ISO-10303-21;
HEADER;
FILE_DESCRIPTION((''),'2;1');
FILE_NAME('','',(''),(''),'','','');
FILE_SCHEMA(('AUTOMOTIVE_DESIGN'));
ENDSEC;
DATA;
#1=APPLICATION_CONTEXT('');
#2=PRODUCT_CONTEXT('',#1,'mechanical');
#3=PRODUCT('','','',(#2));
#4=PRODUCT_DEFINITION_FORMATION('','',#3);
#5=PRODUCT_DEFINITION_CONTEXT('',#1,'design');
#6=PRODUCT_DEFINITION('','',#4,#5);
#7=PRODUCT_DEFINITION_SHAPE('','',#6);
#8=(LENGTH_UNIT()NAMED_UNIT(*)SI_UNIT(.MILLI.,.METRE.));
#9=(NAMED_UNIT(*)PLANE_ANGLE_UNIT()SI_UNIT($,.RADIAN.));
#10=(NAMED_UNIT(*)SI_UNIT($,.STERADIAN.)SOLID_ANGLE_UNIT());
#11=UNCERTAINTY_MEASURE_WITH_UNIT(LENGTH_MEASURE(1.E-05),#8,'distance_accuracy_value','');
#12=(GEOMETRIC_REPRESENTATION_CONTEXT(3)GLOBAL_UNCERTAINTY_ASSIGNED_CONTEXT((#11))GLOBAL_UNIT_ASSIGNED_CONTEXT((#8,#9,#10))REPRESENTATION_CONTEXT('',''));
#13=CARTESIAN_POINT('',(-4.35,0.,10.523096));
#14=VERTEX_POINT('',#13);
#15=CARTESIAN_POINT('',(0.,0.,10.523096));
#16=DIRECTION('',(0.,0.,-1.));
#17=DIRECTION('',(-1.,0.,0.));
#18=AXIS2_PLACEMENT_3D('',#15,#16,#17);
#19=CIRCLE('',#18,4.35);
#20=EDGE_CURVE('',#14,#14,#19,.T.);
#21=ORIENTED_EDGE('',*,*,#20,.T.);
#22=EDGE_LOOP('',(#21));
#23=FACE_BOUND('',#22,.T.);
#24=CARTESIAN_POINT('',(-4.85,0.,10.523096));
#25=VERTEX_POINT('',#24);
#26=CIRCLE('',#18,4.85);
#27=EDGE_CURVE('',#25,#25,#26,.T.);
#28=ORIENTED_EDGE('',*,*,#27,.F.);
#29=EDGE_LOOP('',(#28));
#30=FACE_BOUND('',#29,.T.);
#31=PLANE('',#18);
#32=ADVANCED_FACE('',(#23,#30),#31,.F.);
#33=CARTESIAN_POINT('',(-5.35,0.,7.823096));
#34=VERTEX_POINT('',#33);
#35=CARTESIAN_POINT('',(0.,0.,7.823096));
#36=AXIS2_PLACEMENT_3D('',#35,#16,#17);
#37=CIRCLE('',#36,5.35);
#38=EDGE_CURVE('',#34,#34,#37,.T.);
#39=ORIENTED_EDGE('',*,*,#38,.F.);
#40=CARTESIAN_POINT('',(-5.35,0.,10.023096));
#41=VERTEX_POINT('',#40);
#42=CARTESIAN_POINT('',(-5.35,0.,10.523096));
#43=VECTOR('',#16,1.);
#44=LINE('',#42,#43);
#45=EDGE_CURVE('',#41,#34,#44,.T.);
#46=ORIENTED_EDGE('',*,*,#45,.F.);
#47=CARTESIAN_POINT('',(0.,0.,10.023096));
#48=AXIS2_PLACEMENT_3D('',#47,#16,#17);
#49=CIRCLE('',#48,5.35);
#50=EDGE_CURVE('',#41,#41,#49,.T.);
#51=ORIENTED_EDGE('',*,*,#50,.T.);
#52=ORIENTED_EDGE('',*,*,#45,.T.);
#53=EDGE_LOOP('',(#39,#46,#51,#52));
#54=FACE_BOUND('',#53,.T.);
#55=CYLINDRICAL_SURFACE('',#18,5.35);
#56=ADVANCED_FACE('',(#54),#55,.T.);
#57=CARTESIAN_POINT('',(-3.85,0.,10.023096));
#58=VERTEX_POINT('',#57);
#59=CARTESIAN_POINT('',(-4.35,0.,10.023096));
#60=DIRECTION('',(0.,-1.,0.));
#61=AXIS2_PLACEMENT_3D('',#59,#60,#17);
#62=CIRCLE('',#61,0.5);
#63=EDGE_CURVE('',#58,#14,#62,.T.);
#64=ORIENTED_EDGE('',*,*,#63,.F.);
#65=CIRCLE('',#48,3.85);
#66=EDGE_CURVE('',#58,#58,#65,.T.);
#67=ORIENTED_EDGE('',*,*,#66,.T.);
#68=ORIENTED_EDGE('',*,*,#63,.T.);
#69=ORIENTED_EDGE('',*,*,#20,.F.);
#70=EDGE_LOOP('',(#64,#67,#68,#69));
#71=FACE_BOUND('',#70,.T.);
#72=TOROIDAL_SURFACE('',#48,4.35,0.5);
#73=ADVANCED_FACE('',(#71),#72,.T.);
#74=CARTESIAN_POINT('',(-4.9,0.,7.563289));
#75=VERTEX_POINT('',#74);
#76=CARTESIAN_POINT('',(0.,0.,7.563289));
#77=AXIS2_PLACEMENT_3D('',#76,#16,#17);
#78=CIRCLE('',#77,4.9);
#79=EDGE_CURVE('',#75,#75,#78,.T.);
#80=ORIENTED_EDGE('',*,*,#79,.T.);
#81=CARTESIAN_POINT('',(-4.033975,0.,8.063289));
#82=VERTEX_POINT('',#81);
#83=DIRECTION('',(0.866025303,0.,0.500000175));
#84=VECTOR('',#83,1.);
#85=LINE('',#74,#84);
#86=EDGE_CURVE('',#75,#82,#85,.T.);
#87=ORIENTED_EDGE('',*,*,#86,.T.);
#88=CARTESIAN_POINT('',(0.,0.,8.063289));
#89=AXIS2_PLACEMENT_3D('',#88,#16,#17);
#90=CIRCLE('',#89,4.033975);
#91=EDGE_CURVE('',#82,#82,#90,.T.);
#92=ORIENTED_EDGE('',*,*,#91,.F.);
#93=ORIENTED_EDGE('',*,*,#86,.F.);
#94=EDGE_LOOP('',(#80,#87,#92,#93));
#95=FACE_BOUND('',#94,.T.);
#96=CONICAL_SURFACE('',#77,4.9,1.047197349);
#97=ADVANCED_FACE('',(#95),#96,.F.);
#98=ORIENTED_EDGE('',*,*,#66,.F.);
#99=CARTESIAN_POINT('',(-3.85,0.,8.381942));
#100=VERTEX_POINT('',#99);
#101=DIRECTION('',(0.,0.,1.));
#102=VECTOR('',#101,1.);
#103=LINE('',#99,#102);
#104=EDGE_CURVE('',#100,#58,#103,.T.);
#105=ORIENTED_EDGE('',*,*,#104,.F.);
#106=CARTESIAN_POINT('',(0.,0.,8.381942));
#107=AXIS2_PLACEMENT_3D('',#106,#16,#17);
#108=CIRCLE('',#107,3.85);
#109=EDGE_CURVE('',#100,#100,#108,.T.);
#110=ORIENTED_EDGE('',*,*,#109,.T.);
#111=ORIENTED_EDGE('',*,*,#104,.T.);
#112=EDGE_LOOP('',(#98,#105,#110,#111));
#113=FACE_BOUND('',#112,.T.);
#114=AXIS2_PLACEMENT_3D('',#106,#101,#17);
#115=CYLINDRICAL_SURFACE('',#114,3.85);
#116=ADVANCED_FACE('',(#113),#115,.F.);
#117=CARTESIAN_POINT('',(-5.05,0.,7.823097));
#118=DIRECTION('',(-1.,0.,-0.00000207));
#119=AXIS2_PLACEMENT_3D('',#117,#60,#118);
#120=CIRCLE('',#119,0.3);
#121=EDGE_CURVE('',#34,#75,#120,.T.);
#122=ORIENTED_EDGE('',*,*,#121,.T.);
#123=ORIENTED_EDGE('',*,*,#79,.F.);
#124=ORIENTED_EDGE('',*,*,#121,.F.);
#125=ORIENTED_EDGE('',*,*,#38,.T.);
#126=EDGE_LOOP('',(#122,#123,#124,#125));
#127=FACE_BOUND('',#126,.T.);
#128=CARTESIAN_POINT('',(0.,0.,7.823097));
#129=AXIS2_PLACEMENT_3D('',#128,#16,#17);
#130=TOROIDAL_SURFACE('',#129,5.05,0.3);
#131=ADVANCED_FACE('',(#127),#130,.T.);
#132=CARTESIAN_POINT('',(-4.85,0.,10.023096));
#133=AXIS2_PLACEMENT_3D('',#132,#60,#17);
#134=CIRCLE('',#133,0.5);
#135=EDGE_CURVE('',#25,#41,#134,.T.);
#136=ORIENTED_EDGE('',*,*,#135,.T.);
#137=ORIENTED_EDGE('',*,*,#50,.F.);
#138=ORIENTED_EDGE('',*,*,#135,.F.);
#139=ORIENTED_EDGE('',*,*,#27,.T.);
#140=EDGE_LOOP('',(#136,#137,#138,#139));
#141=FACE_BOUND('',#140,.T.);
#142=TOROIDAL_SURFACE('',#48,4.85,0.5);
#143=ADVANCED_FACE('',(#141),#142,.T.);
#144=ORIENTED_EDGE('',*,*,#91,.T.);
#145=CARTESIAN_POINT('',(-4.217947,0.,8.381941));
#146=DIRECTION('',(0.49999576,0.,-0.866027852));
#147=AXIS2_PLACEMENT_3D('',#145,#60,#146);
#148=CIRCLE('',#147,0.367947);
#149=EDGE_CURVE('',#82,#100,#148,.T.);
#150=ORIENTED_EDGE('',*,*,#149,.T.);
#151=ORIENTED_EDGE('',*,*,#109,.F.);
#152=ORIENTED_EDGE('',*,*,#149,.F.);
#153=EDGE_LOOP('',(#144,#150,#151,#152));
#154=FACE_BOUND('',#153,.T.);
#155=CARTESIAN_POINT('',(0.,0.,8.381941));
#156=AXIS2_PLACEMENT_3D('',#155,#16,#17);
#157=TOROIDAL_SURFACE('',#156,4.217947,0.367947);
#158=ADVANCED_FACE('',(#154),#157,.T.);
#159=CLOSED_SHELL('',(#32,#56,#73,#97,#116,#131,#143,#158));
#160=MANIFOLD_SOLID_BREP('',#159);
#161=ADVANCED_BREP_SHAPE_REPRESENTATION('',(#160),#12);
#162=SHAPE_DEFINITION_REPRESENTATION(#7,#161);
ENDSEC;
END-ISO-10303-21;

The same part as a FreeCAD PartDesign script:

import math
import FreeCAD as App
import Part
import Sketcher
Q = App.Units.Quantity


def edges_at(feature, points):
    """Names of the edges that pass closest to the given points."""
    edges = feature.Shape.Edges
    near = lambda p: min(range(len(edges)), key=lambda i: edges[i].distToShape(Part.Vertex(*p))[0])
    return sorted({f"Edge{near(p) + 1}" for p in points})

doc = App.newDocument("Part")
params = doc.addObject("Spreadsheet::Sheet", "Params")
for row, (alias, value) in enumerate([
    ("sketch1_radius", "0.3 mm"),
    ("sketch1_length", "1 mm"),
    ("sketch1_width", "1.5 mm"),
    ("sketch1_height", "2.7 mm"),
    ("revolution_angle", "360 deg"),
    ("fillet_radius", "0.5 mm"),
], start=1):
    params.set(f"A{row}", alias)
    params.set(f"B{row}", "=" + value)
    params.setAlias(f"B{row}", alias)

body = doc.addObject("PartDesign::Body", "Body")

sketch1 = body.newObject("Sketcher::SketchObject", "Sketch")
sketch1.AttachmentSupport = (doc.getObject("XZ_Plane"), [""])
sketch1.MapMode = "FlatFace"
sketch1.addGeometry([
    Part.LineSegment(App.Vector(-4.9, 7.56, 0), App.Vector(-4.03, 8.06, 0)),
    Part.ArcOfCircle(Part.Circle(App.Vector(-4.22, 8.38, 0), App.Vector(0, 0, 1), 0.37), math.radians(-60), math.radians(0)),
    Part.LineSegment(App.Vector(-3.85, 8.38, 0), App.Vector(-3.85, 10.52, 0)),
    Part.LineSegment(App.Vector(-3.85, 10.52, 0), App.Vector(-5.35, 10.52, 0)),
    Part.LineSegment(App.Vector(-5.35, 10.52, 0), App.Vector(-5.35, 7.82, 0)),
    Part.ArcOfCircle(Part.Circle(App.Vector(-5.05, 7.82, 0), App.Vector(0, 0, 1), 0.3), math.radians(-180), math.radians(-60)),
], False)
sketch1.addConstraint([
    Sketcher.Constraint("Coincident", 0, 2, 1, 1),
    Sketcher.Constraint("Coincident", 1, 2, 2, 1),
    Sketcher.Constraint("Coincident", 2, 2, 3, 1),
    Sketcher.Constraint("Coincident", 3, 2, 4, 1),
    Sketcher.Constraint("Coincident", 4, 2, 5, 1),
    Sketcher.Constraint("Tangent", 5, 2, 0, 1),
    Sketcher.Constraint("Vertical", 2),
    Sketcher.Constraint("Horizontal", 3),
    Sketcher.Constraint("Vertical", 4),
    Sketcher.Constraint("Horizontal", 5, 3, 4, 2),
    Sketcher.Constraint("Radius", 5, 0.3),
    Sketcher.Constraint("Angle", 0, Q("30.000012 deg")),
    Sketcher.Constraint("Distance", 0, 1.0),
    Sketcher.Constraint("DistanceX", 3, 2, 3, 1, 1.5),
    Sketcher.Constraint("DistanceY", 4, 2, 4, 1, 2.7),
    Sketcher.Constraint("DistanceX", 5, 2, -1, 1, 4.9),
    Sketcher.Constraint("Radius", 1, 0.367947),
    Sketcher.Constraint("DistanceY", 2, 1, 2, 2, 2.141154),
    Sketcher.Constraint("DistanceY", -1, 1, 1, 3, 8.381941),
])
sketch1.setExpression("Constraints[10]", "Params.sketch1_radius")
sketch1.setExpression("Constraints[12]", "Params.sketch1_length")
sketch1.setExpression("Constraints[13]", "Params.sketch1_width")
sketch1.setExpression("Constraints[14]", "Params.sketch1_height")
revolution = body.newObject("PartDesign::Revolution", "Revolution")
revolution.Profile = sketch1
revolution.ReferenceAxis = (sketch1, ["V_Axis"])
revolution.setExpression("Angle", "Params.revolution_angle")
doc.recompute()

fillet = body.newObject("PartDesign::Fillet", "Fillet")
fillet.Base = (revolution, edges_at(revolution, [(3.85, 0, 10.523), (5.35, 0, 10.523)]))
fillet.setExpression("Radius", "Params.fillet_radius")

doc.recompute()
